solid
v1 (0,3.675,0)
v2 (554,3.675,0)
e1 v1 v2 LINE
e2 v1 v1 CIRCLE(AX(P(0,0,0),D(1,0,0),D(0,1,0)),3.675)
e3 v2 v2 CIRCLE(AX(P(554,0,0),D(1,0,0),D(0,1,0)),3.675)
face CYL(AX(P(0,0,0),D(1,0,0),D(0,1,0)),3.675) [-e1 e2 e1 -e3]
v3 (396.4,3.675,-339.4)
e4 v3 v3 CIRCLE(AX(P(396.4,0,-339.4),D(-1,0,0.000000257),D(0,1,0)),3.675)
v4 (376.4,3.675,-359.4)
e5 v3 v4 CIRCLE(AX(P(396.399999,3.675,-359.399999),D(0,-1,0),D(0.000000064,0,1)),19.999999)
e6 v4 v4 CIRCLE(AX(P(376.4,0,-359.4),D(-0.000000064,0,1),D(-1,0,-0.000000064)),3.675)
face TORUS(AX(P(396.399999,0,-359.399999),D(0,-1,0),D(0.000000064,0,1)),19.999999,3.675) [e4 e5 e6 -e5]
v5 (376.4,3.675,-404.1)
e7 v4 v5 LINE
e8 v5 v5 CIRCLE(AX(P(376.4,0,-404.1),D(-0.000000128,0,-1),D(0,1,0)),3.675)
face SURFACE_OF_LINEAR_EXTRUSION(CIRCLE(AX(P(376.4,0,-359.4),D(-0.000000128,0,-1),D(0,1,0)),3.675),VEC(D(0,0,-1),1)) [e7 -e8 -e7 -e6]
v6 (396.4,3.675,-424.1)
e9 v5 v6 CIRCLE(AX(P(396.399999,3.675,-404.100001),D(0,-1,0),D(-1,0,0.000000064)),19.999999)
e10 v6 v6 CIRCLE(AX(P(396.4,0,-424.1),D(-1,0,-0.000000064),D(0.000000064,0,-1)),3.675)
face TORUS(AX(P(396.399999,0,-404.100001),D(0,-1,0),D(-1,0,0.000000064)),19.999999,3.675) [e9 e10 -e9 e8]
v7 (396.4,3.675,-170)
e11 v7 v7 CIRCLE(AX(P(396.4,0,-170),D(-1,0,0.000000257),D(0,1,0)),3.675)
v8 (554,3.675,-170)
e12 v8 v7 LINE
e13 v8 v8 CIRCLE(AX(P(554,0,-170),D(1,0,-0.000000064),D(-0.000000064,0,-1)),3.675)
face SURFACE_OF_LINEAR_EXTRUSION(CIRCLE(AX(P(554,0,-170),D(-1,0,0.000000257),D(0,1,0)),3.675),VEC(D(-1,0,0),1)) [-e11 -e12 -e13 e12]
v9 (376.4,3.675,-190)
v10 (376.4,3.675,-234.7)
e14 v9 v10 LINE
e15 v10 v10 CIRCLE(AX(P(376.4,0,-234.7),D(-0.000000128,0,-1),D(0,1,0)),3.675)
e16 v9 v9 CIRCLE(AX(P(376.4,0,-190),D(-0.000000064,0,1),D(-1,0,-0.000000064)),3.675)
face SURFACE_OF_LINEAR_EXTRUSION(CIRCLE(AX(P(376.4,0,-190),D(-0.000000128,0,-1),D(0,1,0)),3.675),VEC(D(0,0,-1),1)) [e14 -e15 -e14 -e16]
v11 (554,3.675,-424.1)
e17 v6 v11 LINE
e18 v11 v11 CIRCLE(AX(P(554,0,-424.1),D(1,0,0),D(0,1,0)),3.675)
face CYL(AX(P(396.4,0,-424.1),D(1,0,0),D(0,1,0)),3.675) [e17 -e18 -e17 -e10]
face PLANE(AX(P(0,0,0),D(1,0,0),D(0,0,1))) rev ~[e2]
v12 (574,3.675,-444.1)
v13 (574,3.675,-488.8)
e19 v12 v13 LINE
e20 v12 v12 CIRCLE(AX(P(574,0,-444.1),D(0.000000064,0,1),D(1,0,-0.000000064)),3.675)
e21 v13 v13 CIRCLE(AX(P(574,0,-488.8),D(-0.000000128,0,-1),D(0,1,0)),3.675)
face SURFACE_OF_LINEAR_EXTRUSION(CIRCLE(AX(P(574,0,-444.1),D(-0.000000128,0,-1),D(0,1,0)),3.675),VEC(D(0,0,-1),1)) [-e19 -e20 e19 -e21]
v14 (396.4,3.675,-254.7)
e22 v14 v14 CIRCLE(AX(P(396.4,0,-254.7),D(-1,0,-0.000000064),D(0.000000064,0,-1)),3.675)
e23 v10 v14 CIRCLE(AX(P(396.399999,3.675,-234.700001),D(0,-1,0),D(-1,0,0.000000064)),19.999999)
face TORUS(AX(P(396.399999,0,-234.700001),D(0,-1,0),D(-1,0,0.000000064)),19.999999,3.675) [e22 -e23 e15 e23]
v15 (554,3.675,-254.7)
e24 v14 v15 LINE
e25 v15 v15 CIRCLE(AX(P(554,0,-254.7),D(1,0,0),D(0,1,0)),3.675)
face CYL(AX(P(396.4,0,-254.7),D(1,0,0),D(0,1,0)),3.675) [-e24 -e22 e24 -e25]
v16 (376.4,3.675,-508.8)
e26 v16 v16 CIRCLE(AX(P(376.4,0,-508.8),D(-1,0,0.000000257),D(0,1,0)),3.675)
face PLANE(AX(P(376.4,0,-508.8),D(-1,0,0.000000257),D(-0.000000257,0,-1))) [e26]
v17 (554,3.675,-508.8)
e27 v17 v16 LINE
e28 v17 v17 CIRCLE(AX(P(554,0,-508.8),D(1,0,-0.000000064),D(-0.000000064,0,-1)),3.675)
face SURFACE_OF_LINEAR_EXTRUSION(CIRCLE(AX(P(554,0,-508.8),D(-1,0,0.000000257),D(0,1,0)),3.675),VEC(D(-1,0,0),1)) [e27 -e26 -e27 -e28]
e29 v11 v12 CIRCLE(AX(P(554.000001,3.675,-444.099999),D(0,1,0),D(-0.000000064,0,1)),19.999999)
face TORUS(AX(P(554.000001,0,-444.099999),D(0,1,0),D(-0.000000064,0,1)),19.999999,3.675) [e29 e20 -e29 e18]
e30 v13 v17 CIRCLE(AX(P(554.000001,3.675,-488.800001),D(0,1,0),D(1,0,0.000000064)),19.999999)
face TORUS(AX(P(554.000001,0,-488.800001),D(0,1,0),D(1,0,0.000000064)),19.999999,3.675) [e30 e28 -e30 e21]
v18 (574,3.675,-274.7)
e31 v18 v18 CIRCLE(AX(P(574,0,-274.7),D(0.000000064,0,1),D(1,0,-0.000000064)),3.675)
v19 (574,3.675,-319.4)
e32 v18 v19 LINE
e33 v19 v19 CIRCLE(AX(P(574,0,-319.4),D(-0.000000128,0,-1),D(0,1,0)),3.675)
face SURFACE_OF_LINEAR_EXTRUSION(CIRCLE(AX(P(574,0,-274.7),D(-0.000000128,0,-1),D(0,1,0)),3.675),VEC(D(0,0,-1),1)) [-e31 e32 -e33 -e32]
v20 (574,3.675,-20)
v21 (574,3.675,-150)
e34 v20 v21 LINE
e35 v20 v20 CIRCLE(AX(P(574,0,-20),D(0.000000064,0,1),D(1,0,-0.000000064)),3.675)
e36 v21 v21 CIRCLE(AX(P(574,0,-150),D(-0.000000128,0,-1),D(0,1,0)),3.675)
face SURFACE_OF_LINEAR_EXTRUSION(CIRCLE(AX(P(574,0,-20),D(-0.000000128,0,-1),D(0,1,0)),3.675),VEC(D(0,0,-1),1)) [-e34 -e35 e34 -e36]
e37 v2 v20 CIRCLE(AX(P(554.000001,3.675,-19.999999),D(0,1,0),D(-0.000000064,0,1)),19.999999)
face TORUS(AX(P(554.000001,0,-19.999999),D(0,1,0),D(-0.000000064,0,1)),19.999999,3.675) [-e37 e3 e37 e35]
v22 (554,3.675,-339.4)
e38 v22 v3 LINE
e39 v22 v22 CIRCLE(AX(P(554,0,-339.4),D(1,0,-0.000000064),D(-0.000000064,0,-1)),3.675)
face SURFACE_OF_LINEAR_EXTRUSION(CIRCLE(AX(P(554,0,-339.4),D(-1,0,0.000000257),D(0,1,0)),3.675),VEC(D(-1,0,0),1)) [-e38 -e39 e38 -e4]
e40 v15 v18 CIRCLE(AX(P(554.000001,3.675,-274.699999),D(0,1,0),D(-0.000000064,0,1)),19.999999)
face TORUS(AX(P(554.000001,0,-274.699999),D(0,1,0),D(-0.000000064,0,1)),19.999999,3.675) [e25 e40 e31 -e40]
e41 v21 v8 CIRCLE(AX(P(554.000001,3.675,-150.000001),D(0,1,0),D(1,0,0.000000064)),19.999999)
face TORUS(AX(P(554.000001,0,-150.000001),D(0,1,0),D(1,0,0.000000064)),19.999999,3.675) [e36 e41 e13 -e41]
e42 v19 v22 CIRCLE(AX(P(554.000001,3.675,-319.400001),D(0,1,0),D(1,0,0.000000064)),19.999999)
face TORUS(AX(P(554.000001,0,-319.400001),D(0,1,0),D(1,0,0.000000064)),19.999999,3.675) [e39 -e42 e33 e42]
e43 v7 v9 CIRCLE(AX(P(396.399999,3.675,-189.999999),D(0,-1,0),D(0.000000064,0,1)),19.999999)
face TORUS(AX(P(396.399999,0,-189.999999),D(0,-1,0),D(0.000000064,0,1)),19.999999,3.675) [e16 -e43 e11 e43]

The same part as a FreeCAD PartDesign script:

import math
import FreeCAD as App
import Part
import Sketcher
from FreeCAD import Vector

doc = App.newDocument("Part")
body = doc.addObject("PartDesign::Body", "Body")

# Sketch on YZ plane
sketch1 = body.newObject("Sketcher::SketchObject", "Sketch")
sketch1.AttachmentSupport = (doc.getObject("YZ_Plane"), [""])
sketch1.MapMode = "FlatFace"
sketch1.addGeometry(Part.Circle(Vector(0, 0, 0), Vector(0, 0, 1), 3.7), False)
sketch1.addConstraint([
    Sketcher.Constraint("Coincident", 0, 3, -1, 1),
    Sketcher.Constraint("Diameter", 0, 7.35),
])

# Sketch on XZ plane
sketch2 = body.newObject("Sketcher::SketchObject", "Sketch001")
sketch2.AttachmentSupport = (doc.getObject("XZ_Plane"), [""])
sketch2.MapMode = "FlatFace"
sketch2.addGeometry([
    Part.LineSegment(Vector(0, 0, 0), Vector(554, 0, 0)),  # 0
    Part.ArcOfCircle(Part.Circle(Vector(554, -20, 0), Vector(0, 0, 1), 20), math.radians(0), math.radians(90)),  # 1
    Part.LineSegment(Vector(574, -20, 0), Vector(574, -150, 0)),  # 2
    Part.ArcOfCircle(Part.Circle(Vector(554, -150, 0), Vector(0, 0, 1), 20), math.radians(-90), math.radians(0)),  # 3
    Part.LineSegment(Vector(554, -170, 0), Vector(396, -170, 0)),  # 4
    Part.ArcOfCircle(Part.Circle(Vector(396, -190, 0), Vector(0, 0, 1), 20), math.radians(90), math.radians(180)),  # 5
    Part.LineSegment(Vector(376, -190, 0), Vector(376, -235, 0)),  # 6
    Part.ArcOfCircle(Part.Circle(Vector(396, -235, 0), Vector(0, 0, 1), 20), math.radians(180), math.radians(270)),  # 7
    Part.LineSegment(Vector(396, -255, 0), Vector(554, -255, 0)),  # 8
    Part.ArcOfCircle(Part.Circle(Vector(554, -275, 0), Vector(0, 0, 1), 20), math.radians(0), math.radians(90)),  # 9
    Part.LineSegment(Vector(574, -275, 0), Vector(574, -319, 0)),  # 10
    Part.ArcOfCircle(Part.Circle(Vector(554, -319, 0), Vector(0, 0, 1), 20), math.radians(-90), math.radians(0)),  # 11
    Part.LineSegment(Vector(554, -339, 0), Vector(396, -339, 0)),  # 12
    Part.ArcOfCircle(Part.Circle(Vector(396, -359, 0), Vector(0, 0, 1), 20), math.radians(90), math.radians(180)),  # 13
    Part.LineSegment(Vector(376, -359, 0), Vector(376, -404, 0)),  # 14
    Part.ArcOfCircle(Part.Circle(Vector(396, -404, 0), Vector(0, 0, 1), 20), math.radians(180), math.radians(270)),  # 15
    Part.LineSegment(Vector(396, -424, 0), Vector(554, -424, 0)),  # 16
    Part.ArcOfCircle(Part.Circle(Vector(554, -444, 0), Vector(0, 0, 1), 20), math.radians(0), math.radians(90)),  # 17
    Part.LineSegment(Vector(574, -444, 0), Vector(574, -489, 0)),  # 18
    Part.ArcOfCircle(Part.Circle(Vector(554, -489, 0), Vector(0, 0, 1), 20), math.radians(-90), math.radians(0)),  # 19
    Part.LineSegment(Vector(554, -509, 0), Vector(376, -509, 0)),  # 20
], False)
sketch2.addConstraint([
    Sketcher.Constraint("Tangent", 0, 2, 1, 2),
    Sketcher.Constraint("Tangent", 1, 1, 2, 1),
    Sketcher.Constraint("Tangent", 2, 2, 3, 2),
    Sketcher.Constraint("Tangent", 3, 1, 4, 1),
    Sketcher.Constraint("Tangent", 4, 2, 5, 1),
    Sketcher.Constraint("Tangent", 5, 2, 6, 1),
    Sketcher.Constraint("Tangent", 6, 2, 7, 1),
    Sketcher.Constraint("Tangent", 7, 2, 8, 1),
    Sketcher.Constraint("Tangent", 8, 2, 9, 2),
    Sketcher.Constraint("Tangent", 9, 1, 10, 1),
    Sketcher.Constraint("Tangent", 10, 2, 11, 2),
    Sketcher.Constraint("Tangent", 11, 1, 12, 1),
    Sketcher.Constraint("Tangent", 12, 2, 13, 1),
    Sketcher.Constraint("Tangent", 13, 2, 14, 1),
    Sketcher.Constraint("Tangent", 14, 2, 15, 1),
    Sketcher.Constraint("Tangent", 15, 2, 16, 1),
    Sketcher.Constraint("Tangent", 16, 2, 17, 2),
    Sketcher.Constraint("Tangent", 17, 1, 18, 1),
    Sketcher.Constraint("Tangent", 18, 2, 19, 2),
    Sketcher.Constraint("Tangent", 19, 1, 20, 1),
    Sketcher.Constraint("Horizontal", 0),
    Sketcher.Constraint("Vertical", 2),
    Sketcher.Constraint("Horizontal", 4),
    Sketcher.Constraint("Vertical", 6),
    Sketcher.Constraint("Horizontal", 8),
    Sketcher.Constraint("Vertical", 10),
    Sketcher.Constraint("Horizontal", 12),
    Sketcher.Constraint("Vertical", 14),
    Sketcher.Constraint("Horizontal", 16),
    Sketcher.Constraint("Vertical", 18),
    Sketcher.Constraint("Horizontal", 20),
    Sketcher.Constraint("Coincident", 0, 1, -1, 1),
    Sketcher.Constraint("Equal", 1, 3),
    Sketcher.Constraint("Equal", 3, 5),
    Sketcher.Constraint("Equal", 5, 7),
    Sketcher.Constraint("Equal", 7, 9),
    Sketcher.Constraint("Equal", 9, 11),
    Sketcher.Constraint("Equal", 11, 13),
    Sketcher.Constraint("Equal", 13, 15),
    Sketcher.Constraint("Equal", 15, 17),
    Sketcher.Constraint("Equal", 17, 19),
    Sketcher.Constraint("Vertical", 3, 3, 9, 3),
    Sketcher.Constraint("Vertical", 7, 3, 13, 3),
    Sketcher.Constraint("Vertical", 11, 3, 17, 3),
    Sketcher.Constraint("Vertical", 14, 2, 20, 2),
    Sketcher.Constraint("Equal", 6, 10),
    Sketcher.Constraint("Equal", 10, 14),
    Sketcher.Constraint("Equal", 14, 18),
    Sketcher.Constraint("Radius", 1, 19.999999),
    Sketcher.Constraint("DistanceX", 0, 1, 0, 2, 554.0),
    Sketcher.Constraint("DistanceY", 2, 2, 2, 1, 130.0),
    Sketcher.Constraint("DistanceX", 4, 2, 4, 1, 157.6),
    Sketcher.Constraint("DistanceY", 6, 2, 6, 1, 44.7),
])
doc.recompute()

additivepipe = body.newObject("PartDesign::AdditivePipe", "AdditivePipe")
additivepipe.Profile = sketch1
additivepipe.Spine = (sketch2, ["Edge1", "Edge2", "Edge3", "Edge4", "Edge5", "Edge6", "Edge7", "Edge8", "Edge9", "Edge10", "Edge11", "Edge12", "Edge13", "Edge14", "Edge15", "Edge16", "Edge17", "Edge18", "Edge19", "Edge20", "Edge21"])

doc.recompute()
